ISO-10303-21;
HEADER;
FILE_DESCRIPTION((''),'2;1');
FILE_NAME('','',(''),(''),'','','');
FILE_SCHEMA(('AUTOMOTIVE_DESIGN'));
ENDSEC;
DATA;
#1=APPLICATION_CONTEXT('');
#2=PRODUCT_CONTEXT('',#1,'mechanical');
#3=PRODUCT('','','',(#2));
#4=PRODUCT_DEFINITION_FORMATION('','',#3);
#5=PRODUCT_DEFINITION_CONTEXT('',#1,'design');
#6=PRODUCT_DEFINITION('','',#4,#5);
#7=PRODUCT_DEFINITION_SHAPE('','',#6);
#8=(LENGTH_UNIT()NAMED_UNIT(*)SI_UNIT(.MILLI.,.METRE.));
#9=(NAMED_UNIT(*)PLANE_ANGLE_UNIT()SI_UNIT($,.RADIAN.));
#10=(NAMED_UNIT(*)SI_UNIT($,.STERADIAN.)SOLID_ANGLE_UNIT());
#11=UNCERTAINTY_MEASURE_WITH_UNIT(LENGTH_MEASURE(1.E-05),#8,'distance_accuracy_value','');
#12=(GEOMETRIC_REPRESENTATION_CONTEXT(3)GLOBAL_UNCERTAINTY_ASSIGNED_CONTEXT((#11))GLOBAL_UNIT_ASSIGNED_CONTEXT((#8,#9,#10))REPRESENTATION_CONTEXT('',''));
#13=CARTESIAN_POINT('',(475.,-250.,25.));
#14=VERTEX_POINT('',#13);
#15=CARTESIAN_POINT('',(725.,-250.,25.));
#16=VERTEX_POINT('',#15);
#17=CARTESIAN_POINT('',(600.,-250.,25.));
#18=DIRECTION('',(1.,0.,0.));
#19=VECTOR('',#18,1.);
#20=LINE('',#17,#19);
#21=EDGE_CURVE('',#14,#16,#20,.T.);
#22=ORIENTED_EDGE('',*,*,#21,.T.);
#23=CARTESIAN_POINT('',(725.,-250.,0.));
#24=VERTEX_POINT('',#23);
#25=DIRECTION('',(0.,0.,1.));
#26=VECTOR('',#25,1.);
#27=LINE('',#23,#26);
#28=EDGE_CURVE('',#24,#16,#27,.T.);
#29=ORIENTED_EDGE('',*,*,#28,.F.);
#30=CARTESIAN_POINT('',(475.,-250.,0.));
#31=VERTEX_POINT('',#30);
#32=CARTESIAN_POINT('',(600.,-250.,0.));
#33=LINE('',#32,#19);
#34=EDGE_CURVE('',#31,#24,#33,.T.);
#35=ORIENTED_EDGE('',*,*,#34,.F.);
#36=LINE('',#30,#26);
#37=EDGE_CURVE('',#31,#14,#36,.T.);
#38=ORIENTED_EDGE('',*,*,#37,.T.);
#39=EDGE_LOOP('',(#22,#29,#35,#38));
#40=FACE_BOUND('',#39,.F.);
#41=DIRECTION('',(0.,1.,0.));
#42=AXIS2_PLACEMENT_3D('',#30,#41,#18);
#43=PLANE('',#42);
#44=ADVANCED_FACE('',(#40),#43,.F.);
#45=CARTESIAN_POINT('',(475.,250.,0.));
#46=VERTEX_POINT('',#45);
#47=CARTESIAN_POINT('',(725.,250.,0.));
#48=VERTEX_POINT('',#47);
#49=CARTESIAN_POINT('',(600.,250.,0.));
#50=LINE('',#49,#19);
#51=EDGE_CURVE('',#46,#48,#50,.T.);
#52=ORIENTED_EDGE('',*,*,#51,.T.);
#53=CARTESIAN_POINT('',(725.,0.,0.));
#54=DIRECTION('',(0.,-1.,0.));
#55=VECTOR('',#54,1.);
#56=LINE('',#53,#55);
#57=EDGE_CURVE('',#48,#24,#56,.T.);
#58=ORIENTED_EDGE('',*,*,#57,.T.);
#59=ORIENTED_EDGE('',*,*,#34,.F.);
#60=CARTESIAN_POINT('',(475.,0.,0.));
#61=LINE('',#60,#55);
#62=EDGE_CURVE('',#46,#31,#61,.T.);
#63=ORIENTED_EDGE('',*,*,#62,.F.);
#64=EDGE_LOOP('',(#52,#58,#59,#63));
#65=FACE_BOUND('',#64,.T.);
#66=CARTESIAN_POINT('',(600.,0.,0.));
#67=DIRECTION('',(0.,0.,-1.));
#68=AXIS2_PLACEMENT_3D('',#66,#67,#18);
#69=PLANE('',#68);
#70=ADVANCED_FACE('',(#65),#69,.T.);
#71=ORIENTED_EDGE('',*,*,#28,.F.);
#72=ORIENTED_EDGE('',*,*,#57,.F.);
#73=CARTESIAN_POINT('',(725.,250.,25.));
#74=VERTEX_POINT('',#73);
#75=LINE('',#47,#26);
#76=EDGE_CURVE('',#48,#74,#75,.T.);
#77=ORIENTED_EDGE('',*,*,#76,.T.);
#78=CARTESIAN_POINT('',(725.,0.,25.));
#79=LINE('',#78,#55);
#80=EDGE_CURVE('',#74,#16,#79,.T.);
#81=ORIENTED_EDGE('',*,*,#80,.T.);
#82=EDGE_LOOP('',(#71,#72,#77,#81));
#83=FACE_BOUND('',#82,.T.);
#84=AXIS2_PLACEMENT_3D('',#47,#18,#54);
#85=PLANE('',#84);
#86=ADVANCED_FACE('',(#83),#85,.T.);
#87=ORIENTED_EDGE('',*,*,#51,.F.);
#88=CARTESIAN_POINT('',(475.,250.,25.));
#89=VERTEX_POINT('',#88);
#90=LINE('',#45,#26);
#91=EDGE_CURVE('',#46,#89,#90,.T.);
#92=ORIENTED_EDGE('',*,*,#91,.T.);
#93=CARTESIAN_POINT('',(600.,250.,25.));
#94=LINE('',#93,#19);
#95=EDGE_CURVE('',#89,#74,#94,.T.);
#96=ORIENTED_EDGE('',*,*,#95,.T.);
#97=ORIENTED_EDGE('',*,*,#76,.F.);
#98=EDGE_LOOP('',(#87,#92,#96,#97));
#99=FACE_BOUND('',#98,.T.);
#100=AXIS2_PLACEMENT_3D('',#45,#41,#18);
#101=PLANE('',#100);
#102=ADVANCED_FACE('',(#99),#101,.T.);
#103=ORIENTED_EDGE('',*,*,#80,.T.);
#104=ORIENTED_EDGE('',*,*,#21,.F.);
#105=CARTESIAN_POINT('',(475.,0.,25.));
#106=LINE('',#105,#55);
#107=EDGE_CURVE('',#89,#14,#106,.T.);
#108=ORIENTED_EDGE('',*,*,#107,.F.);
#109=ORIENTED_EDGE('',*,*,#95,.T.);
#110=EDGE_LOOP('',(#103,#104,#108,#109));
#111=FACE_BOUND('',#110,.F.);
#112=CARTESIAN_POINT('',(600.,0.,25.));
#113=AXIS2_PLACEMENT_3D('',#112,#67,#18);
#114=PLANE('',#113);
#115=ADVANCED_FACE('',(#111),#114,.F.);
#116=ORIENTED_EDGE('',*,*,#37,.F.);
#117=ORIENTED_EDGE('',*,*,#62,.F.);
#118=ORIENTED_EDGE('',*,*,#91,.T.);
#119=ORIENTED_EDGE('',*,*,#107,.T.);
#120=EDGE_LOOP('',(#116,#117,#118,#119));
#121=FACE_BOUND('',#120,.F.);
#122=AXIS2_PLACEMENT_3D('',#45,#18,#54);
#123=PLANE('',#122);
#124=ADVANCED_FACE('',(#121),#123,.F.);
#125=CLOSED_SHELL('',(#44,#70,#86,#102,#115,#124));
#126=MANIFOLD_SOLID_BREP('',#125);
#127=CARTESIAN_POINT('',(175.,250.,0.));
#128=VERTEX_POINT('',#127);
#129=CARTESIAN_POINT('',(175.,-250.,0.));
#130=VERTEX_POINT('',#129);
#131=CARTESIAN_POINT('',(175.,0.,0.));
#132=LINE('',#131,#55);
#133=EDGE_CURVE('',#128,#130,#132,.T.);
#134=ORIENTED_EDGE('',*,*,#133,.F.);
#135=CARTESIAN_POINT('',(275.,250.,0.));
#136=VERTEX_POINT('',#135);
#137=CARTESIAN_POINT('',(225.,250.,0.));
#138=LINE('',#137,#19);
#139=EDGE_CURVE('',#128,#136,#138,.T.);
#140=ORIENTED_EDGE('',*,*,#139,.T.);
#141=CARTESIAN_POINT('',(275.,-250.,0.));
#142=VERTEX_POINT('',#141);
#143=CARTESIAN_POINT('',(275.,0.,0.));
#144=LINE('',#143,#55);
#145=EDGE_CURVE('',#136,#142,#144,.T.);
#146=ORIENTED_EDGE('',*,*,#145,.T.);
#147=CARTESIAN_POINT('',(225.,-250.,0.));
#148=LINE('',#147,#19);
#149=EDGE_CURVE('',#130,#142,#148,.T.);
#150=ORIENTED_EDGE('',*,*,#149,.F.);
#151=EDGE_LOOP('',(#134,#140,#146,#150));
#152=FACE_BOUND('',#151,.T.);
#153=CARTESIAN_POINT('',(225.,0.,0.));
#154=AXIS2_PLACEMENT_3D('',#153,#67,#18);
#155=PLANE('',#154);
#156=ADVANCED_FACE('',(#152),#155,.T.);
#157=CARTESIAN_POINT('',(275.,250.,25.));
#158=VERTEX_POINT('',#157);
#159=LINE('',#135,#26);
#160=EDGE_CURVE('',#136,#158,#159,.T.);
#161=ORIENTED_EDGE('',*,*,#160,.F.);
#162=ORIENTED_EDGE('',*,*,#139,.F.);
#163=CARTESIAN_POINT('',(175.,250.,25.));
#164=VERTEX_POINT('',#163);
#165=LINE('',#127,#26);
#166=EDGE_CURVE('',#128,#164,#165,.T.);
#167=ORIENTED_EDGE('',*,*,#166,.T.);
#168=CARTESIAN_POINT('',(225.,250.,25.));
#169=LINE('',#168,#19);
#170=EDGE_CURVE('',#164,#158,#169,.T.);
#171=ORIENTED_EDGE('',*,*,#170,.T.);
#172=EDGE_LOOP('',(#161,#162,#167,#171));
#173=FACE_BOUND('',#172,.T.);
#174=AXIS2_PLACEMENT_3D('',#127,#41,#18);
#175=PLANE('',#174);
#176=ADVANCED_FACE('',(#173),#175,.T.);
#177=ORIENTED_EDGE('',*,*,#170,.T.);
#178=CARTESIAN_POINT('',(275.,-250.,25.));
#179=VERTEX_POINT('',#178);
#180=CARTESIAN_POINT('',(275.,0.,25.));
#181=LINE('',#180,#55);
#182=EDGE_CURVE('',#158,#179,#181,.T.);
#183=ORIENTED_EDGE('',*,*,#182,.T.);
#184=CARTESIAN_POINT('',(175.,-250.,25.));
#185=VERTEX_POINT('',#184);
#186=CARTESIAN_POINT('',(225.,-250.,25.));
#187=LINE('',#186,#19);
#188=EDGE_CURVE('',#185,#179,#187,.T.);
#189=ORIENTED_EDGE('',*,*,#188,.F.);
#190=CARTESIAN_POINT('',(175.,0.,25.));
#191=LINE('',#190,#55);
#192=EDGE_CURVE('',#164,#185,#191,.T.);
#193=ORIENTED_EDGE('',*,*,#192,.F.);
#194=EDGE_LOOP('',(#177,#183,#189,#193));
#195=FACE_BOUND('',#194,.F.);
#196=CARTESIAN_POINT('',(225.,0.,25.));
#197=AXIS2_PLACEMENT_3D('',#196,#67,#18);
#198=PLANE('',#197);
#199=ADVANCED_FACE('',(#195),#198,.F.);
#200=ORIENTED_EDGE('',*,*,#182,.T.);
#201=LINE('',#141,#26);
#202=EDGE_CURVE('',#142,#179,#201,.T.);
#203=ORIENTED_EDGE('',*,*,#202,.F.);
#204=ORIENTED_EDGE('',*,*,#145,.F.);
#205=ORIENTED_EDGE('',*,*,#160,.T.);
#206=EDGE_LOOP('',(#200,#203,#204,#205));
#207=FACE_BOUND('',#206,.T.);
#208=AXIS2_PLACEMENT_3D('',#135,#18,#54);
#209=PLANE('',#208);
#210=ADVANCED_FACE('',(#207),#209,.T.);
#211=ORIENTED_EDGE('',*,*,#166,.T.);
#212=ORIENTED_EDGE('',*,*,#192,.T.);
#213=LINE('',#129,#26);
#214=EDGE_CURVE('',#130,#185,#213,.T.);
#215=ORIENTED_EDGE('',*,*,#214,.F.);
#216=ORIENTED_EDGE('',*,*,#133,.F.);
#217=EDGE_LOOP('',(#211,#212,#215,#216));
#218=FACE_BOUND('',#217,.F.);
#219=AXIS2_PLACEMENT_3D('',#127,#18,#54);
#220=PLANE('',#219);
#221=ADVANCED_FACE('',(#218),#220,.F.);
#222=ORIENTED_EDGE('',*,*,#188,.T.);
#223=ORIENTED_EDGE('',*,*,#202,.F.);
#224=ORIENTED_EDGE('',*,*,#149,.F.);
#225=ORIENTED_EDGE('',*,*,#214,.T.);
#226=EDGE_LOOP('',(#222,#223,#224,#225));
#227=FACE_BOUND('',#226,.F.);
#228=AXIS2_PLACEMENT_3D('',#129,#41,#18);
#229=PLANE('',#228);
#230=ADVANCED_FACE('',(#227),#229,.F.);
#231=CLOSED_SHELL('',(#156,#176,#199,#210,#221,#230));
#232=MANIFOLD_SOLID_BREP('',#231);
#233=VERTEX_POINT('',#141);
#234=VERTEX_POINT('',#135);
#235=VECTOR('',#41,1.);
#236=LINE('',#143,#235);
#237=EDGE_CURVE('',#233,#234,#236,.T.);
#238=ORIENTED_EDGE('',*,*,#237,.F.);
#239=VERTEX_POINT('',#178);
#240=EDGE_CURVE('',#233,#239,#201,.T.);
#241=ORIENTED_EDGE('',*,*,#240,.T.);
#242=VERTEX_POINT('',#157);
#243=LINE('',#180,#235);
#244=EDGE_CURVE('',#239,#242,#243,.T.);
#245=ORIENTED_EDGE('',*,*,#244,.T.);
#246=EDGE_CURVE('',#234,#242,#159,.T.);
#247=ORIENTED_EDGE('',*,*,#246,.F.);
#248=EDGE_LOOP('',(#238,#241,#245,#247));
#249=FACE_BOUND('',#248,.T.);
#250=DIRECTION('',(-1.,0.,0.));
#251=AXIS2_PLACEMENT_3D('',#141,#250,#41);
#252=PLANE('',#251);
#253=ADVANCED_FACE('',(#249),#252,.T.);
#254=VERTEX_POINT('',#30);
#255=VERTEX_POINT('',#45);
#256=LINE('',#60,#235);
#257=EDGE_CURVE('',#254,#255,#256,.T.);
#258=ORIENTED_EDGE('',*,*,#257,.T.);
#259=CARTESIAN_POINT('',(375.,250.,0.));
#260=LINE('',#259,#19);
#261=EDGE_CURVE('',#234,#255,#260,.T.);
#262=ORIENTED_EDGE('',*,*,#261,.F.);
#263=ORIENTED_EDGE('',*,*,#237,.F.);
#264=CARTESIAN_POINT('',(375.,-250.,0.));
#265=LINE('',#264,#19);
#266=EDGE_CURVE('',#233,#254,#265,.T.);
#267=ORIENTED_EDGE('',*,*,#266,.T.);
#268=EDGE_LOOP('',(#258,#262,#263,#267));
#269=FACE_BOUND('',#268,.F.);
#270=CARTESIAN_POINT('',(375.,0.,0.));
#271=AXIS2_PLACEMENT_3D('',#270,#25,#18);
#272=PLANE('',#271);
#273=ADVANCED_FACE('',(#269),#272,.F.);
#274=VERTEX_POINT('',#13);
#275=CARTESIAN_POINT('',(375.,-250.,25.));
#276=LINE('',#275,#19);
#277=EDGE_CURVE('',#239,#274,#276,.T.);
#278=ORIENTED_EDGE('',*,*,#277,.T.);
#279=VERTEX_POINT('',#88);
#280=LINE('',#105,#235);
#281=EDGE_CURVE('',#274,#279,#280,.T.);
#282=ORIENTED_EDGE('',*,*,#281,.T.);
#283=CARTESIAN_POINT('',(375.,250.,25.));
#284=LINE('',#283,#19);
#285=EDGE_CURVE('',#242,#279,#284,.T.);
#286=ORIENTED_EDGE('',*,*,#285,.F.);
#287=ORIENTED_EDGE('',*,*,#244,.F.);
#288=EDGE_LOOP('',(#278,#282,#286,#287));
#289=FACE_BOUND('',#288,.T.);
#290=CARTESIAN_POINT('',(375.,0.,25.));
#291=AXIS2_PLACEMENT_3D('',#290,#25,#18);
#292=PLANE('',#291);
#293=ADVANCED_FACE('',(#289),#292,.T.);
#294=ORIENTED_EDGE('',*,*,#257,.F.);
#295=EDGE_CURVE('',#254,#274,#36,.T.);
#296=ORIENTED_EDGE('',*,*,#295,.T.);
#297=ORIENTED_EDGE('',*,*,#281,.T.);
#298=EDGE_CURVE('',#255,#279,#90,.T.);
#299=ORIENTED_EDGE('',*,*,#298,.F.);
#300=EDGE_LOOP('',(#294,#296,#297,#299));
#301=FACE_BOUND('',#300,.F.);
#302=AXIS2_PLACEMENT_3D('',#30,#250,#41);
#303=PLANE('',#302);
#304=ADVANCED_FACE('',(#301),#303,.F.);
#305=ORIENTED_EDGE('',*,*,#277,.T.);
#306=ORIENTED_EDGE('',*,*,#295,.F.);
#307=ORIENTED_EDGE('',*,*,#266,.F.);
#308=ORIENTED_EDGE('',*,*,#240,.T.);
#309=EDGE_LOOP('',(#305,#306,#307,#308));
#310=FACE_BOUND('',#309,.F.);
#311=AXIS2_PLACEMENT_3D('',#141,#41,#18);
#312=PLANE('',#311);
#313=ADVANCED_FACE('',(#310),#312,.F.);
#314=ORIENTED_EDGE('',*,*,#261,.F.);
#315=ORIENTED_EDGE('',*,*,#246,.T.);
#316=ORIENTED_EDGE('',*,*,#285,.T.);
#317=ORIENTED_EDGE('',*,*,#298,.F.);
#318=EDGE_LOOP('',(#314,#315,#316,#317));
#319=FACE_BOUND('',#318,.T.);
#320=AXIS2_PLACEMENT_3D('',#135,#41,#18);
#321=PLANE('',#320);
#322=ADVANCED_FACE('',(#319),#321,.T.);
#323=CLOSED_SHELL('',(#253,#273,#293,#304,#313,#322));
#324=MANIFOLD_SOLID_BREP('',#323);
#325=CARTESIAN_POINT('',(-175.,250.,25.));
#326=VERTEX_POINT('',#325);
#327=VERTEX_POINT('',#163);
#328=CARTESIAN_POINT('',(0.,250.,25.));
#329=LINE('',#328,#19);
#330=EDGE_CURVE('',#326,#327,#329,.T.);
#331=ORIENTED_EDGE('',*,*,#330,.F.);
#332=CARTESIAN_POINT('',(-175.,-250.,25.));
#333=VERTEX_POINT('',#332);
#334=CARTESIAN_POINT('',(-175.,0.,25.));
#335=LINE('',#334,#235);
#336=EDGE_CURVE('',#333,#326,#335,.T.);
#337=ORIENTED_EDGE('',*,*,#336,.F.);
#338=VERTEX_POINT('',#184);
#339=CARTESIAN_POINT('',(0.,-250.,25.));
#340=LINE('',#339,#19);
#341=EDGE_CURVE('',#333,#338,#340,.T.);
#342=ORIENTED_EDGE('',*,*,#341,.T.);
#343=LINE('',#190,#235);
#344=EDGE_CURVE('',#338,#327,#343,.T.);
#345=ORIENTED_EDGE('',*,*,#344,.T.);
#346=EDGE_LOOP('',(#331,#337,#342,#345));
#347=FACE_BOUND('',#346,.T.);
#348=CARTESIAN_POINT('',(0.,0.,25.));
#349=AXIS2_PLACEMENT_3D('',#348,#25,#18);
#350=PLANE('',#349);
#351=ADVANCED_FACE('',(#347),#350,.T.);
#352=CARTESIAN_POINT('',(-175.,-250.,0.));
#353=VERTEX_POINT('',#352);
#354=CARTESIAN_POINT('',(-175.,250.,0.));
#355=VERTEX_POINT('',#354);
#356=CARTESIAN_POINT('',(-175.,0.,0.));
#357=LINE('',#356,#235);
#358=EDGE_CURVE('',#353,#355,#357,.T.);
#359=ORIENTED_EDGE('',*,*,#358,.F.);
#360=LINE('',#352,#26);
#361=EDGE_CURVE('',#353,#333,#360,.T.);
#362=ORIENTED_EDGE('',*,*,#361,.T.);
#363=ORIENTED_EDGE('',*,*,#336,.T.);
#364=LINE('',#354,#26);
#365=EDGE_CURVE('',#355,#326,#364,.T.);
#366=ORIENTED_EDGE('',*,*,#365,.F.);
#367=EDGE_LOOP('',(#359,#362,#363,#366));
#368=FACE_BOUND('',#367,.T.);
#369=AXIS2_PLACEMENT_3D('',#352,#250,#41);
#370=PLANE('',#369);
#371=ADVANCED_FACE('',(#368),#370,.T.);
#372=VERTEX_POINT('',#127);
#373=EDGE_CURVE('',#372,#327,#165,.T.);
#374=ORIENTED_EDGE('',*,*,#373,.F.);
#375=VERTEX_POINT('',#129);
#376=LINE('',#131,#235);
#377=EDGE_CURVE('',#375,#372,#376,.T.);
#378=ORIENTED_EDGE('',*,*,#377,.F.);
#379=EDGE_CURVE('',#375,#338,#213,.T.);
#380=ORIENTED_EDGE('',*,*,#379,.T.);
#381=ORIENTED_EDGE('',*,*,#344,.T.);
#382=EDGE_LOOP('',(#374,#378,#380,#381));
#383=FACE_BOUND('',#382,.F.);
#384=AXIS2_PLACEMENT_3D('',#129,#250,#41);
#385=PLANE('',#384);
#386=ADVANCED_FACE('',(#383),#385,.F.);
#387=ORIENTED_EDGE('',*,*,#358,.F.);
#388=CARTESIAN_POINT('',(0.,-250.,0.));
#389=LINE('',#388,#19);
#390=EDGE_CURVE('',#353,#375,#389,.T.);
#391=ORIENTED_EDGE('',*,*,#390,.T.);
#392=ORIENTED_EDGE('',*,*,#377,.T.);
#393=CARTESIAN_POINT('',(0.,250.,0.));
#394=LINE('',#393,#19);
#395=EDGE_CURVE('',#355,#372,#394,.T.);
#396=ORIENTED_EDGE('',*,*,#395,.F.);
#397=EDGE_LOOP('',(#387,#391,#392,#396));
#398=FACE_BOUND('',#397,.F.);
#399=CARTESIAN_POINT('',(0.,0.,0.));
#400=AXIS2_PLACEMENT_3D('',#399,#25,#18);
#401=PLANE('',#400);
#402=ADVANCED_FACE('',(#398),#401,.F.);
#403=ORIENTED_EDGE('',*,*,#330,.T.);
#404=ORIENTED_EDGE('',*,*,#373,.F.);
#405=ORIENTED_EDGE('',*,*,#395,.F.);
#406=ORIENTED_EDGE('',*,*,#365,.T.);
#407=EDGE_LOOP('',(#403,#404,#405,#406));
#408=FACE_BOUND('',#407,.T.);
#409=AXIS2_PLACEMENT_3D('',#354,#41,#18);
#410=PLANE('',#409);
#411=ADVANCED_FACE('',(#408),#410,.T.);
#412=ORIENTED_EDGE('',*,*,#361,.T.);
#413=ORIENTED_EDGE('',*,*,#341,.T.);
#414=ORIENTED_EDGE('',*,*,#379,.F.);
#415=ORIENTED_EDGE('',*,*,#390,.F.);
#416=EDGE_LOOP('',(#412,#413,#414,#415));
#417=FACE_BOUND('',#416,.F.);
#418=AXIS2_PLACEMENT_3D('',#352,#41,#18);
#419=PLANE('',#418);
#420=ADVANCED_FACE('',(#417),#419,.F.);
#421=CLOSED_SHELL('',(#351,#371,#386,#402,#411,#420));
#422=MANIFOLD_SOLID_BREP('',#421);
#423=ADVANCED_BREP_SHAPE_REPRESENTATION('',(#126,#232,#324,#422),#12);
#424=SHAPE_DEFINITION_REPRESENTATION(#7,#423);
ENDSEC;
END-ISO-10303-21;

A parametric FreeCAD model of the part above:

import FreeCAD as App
import Part
import Sketcher

V = App.Vector


def add_polygon(sketch, points):
    """Adds a closed chain of lines whose ends are joined by coincident constraints."""
    first, n = sketch.GeometryCount, len(points)
    for a, b in zip(points, points[1:] + points[:1]):
        sketch.addGeometry(Part.LineSegment(App.Vector(*a, 0), App.Vector(*b, 0)), False)
    for i in range(n):
        sketch.addConstraint(Sketcher.Constraint("Coincident", first + i, 2, first + (i + 1) % n, 1))

doc = App.newDocument("Part")
body = doc.addObject("PartDesign::Body", "Body")

# Sketch on XY plane
sketch1 = doc.addObject("Sketcher::SketchObject", "Sketch")
body.addObject(sketch1)
sketch1.AttachmentSupport = (doc.XY_Plane, [""])
sketch1.MapMode = "FlatFace"
add_polygon(sketch1, [(-175, 250), (-175, -250), (175, -250), (175, 250)])  # lines 0-3
sketch1.addConstraint([
    Sketcher.Constraint("Vertical", 0),
    Sketcher.Constraint("Horizontal", 1),
    Sketcher.Constraint("Vertical", 2),
    Sketcher.Constraint("Horizontal", 3),
    Sketcher.Constraint("Symmetric", 0, 2, 2, 2, -1, 1),
    Sketcher.Constraint("DistanceX", 1, 1, 1, 2, 350.0),
    Sketcher.Constraint("DistanceY", 0, 2, 0, 1, 500.0),
])
pad1 = doc.addObject("PartDesign::Pad", "Pad")
body.addObject(pad1)
pad1.Profile = sketch1
pad1.Length = 25
body2 = doc.addObject("PartDesign::Body", "Body001")

# Sketch on XY plane
sketch2 = doc.addObject("Sketcher::SketchObject", "Sketch001")
body2.addObject(sketch2)
sketch2.AttachmentSupport = (doc.getObject("XY_Plane001"), [""])
sketch2.MapMode = "FlatFace"
add_polygon(sketch2, [(175, -250), (175, 250), (275, 250), (275, -250)])  # lines 0-3
sketch2.addConstraint([
    Sketcher.Constraint("Vertical", 0),
    Sketcher.Constraint("Horizontal", 1),
    Sketcher.Constraint("Vertical", 2),
    Sketcher.Constraint("Horizontal", 3),
    Sketcher.Constraint("DistanceX", 1, 1, 1, 2, 100.0),
    Sketcher.Constraint("DistanceY", 0, 1, 0, 2, 500.0),
    Sketcher.Constraint("DistanceX", -1, 1, 0, 2, 175.0),
    Sketcher.Constraint("DistanceY", -1, 1, 0, 2, 250.0),
])
pad2 = doc.addObject("PartDesign::Pad", "Pad001")
body2.addObject(pad2)
pad2.Profile = sketch2
pad2.Length = 25
body3 = doc.addObject("PartDesign::Body", "Body002")

# Sketch on XY plane
sketch3 = doc.addObject("Sketcher::SketchObject", "Sketch002")
body3.addObject(sketch3)
sketch3.AttachmentSupport = (doc.getObject("XY_Plane002"), [""])
sketch3.MapMode = "FlatFace"
add_polygon(sketch3, [(275, 250), (275, -250), (475, -250), (475, 250)])  # lines 0-3
sketch3.addConstraint([
    Sketcher.Constraint("Vertical", 0),
    Sketcher.Constraint("Horizontal", 1),
    Sketcher.Constraint("Vertical", 2),
    Sketcher.Constraint("Horizontal", 3),
    Sketcher.Constraint("DistanceX", 1, 1, 1, 2, 200.0),
    Sketcher.Constraint("DistanceY", 0, 2, 0, 1, 500.0),
    Sketcher.Constraint("DistanceX", -1, 1, 0, 2, 275.0),
    Sketcher.Constraint("DistanceY", 0, 2, -1, 1, 250.0),
])
pad3 = doc.addObject("PartDesign::Pad", "Pad002")
body3.addObject(pad3)
pad3.Profile = sketch3
pad3.Length = 25
body4 = doc.addObject("PartDesign::Body", "Body003")

# Sketch on XY plane
sketch4 = doc.addObject("Sketcher::SketchObject", "Sketch003")
body4.addObject(sketch4)
sketch4.AttachmentSupport = (doc.getObject("XY_Plane003"), [""])
sketch4.MapMode = "FlatFace"
add_polygon(sketch4, [(475, -250), (475, 250), (725, 250), (725, -250)])  # lines 0-3
sketch4.addConstraint([
    Sketcher.Constraint("Vertical", 0),
    Sketcher.Constraint("Horizontal", 1),
    Sketcher.Constraint("Vertical", 2),
    Sketcher.Constraint("Horizontal", 3),
    Sketcher.Constraint("DistanceX", 1, 1, 1, 2, 250.0),
    Sketcher.Constraint("DistanceY", 0, 1, 0, 2, 500.0),
    Sketcher.Constraint("DistanceX", -1, 1, 0, 2, 475.0),
    Sketcher.Constraint("DistanceY", -1, 1, 0, 2, 250.0),
])
pad4 = doc.addObject("PartDesign::Pad", "Pad003")
body4.addObject(pad4)
pad4.Profile = sketch4
pad4.Length = 25

doc.recompute()
